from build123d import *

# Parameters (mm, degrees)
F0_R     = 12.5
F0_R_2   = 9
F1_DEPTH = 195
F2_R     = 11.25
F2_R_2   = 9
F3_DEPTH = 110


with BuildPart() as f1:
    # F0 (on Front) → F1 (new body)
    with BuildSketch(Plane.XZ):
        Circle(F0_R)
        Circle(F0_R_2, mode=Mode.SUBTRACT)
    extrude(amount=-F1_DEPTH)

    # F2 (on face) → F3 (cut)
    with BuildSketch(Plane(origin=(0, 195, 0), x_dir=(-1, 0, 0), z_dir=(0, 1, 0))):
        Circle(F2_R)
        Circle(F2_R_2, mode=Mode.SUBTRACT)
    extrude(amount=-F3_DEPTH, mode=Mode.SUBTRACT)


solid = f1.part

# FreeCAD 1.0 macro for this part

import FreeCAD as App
import Part
import Sketcher
from FreeCAD import Vector

doc = App.newDocument("Part")
body = doc.addObject("PartDesign::Body", "Body")

sketch1 = body.newObject("Sketcher::SketchObject", "Sketch")
sketch1.AttachmentSupport = (doc.getObject("XZ_Plane"), [""])
sketch1.MapMode = "FlatFace"
sketch1.addGeometry([
    Part.Circle(Vector(0, 0, 0), Vector(0, 0, 1), 12.5),
    Part.Circle(Vector(0, 0, 0), Vector(0, 0, 1), 9),
], False)
sketch1.addConstraint([
    Sketcher.Constraint("Coincident", 0, 3, -1, 1),
    Sketcher.Constraint("Coincident", 1, 3, -1, 1),
    Sketcher.Constraint("Diameter", 0, 25.0),
    Sketcher.Constraint("Diameter", 1, 18.0),
])
pad1 = body.newObject("PartDesign::Pad", "Pad")
pad1.Profile = sketch1
pad1.Length = 195
pad1.Reversed = True

sketch2 = body.newObject("Sketcher::SketchObject", "Sketch001")
sketch2.AttachmentSupport = (doc.getObject("XZ_Plane"), [""])
sketch2.MapMode = "FlatFace"
sketch2.AttachmentOffset = App.Placement(Vector(0, 0, -195), App.Rotation())
sketch2.addGeometry([
    Part.Circle(Vector(0, 0, 0), Vector(0, 0, 1), 11.25),
    Part.Circle(Vector(0, 0, 0), Vector(0, 0, 1), 9),
], False)
sketch2.addConstraint([
    Sketcher.Constraint("Coincident", 0, 3, -1, 1),
    Sketcher.Constraint("Coincident", 1, 3, -1, 1),
    Sketcher.Constraint("Diameter", 1, 18.0),
    Sketcher.Constraint("Diameter", 0, 22.5),
])
pocket1 = body.newObject("PartDesign::Pocket", "Pocket")
pocket1.Profile = sketch2
pocket1.Length = 110
pocket1.Reversed = True

doc.recompute()
